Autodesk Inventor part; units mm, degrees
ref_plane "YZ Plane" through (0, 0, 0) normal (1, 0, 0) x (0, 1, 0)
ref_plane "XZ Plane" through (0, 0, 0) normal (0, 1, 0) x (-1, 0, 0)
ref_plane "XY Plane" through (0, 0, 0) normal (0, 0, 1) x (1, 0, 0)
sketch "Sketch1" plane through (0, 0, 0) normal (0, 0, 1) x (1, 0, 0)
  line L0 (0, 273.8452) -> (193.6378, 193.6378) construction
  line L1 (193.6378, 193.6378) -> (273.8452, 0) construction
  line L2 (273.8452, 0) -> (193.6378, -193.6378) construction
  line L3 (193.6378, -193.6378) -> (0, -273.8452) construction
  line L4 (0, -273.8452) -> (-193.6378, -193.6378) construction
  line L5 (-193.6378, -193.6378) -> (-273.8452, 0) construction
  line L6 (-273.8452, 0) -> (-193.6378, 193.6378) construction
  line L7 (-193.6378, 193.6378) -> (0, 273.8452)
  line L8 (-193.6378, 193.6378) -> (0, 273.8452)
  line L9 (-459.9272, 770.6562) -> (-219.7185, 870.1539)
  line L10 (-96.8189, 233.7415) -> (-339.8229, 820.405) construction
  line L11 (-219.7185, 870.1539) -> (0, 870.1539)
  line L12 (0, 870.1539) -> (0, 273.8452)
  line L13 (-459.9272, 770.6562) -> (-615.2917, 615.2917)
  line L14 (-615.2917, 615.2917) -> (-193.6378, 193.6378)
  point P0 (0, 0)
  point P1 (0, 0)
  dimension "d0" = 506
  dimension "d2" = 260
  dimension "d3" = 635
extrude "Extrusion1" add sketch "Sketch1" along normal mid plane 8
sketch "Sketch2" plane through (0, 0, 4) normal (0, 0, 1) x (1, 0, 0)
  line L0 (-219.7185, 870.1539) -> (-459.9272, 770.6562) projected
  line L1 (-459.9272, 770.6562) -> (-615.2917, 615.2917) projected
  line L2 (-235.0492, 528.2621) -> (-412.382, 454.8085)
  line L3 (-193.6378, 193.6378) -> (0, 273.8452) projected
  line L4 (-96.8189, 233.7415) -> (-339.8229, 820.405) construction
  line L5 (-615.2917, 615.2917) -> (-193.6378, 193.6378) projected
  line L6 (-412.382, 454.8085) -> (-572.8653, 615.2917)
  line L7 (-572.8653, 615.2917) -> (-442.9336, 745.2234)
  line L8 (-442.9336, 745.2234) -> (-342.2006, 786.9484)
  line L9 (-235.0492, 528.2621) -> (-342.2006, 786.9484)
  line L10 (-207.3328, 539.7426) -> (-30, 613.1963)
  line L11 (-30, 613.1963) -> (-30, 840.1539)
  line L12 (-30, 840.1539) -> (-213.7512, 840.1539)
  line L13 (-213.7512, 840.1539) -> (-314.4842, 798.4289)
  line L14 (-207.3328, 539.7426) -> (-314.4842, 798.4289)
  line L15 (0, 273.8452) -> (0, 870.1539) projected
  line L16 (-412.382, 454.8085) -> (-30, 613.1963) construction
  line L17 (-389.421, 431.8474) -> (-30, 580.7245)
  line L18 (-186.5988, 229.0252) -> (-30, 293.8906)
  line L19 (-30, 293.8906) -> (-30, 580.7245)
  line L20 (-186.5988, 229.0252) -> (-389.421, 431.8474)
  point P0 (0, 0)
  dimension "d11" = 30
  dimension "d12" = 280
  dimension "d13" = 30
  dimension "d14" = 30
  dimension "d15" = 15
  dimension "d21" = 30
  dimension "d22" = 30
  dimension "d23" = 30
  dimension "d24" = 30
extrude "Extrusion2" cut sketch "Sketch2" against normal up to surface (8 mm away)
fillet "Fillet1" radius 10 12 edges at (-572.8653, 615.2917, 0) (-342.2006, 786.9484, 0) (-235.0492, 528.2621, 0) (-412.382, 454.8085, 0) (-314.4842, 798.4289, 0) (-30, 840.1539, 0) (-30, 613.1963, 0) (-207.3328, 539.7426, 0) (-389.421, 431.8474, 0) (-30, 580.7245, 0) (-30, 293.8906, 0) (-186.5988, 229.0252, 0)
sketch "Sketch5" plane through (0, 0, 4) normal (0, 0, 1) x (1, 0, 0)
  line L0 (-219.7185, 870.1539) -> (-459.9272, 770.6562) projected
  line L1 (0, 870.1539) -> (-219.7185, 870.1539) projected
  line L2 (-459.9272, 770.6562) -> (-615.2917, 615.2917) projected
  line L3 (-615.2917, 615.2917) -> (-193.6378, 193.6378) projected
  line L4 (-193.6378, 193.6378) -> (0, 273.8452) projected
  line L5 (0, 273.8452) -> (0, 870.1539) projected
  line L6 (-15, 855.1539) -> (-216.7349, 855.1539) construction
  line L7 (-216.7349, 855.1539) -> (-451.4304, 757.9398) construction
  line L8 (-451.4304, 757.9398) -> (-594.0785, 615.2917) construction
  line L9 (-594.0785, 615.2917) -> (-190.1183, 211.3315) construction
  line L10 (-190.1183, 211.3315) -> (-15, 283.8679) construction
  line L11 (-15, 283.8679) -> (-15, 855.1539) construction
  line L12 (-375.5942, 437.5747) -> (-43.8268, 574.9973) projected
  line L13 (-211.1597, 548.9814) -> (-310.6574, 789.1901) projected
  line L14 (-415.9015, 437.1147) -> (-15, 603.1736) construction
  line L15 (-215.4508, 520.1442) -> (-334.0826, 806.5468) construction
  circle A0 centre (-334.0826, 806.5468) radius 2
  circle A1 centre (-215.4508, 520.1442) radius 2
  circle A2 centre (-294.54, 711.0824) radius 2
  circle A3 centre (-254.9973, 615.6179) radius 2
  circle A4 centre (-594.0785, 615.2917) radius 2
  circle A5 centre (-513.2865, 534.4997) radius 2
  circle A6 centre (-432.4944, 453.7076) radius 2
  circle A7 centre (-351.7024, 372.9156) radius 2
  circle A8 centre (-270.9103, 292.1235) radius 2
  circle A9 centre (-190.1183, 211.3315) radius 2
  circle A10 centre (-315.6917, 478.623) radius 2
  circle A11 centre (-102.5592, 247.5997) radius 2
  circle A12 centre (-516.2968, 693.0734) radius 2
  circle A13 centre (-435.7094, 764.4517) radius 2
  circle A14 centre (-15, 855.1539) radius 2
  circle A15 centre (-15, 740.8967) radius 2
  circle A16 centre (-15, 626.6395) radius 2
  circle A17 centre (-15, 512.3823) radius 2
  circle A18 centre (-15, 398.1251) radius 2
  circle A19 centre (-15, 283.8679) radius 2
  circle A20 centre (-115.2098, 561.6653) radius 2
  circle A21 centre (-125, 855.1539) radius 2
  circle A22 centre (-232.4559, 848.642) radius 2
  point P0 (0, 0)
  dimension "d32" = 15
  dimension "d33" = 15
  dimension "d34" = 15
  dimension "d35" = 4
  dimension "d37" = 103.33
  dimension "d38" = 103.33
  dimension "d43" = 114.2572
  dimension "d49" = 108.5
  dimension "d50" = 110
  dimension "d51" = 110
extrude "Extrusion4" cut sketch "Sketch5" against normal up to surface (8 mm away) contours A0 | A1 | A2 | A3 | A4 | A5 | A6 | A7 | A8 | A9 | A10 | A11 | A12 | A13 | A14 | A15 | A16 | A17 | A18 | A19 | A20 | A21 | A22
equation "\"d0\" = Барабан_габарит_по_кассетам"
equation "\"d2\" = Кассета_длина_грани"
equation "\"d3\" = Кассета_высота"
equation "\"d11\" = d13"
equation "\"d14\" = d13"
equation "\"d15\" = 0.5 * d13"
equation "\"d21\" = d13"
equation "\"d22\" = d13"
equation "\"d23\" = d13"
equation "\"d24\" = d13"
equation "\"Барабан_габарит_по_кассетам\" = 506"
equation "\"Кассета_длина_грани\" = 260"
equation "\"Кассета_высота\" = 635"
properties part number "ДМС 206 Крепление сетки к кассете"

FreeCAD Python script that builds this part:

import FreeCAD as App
import Part
import Sketcher

V = App.Vector
Q = App.Units.Quantity


def edges_at(feature, points):
    """Names of the edges that pass closest to the given points."""
    edges = feature.Shape.Edges
    near = lambda p: min(range(len(edges)), key=lambda i: edges[i].distToShape(Part.Vertex(*p))[0])
    return sorted({f"Edge{near(p) + 1}" for p in points})

doc = App.newDocument("Part")
body = doc.addObject("PartDesign::Body", "Body")

sketch1 = body.newObject("Sketcher::SketchObject", "Sketch")
sketch1.AttachmentSupport = (doc.getObject("XY_Plane"), [""])
sketch1.MapMode = "FlatFace"
sketch1.addGeometry([
    Part.LineSegment(V(-615, 615, 0), V(-194, 194, 0)),
    Part.LineSegment(V(-194, 194, 0), V(0, 274, 0)),
    Part.LineSegment(V(0, 274, 0), V(0, 870, 0)),
    Part.LineSegment(V(0, 870, 0), V(-220, 870, 0)),
    Part.LineSegment(V(-220, 870, 0), V(-460, 771, 0)),
    Part.LineSegment(V(-460, 771, 0), V(-615, 615, 0)),
], False)
sketch1.addConstraint([
    Sketcher.Constraint("Coincident", 0, 2, 1, 1),
    Sketcher.Constraint("Coincident", 1, 2, 2, 1),
    Sketcher.Constraint("Coincident", 2, 2, 3, 1),
    Sketcher.Constraint("Coincident", 3, 2, 4, 1),
    Sketcher.Constraint("Coincident", 4, 2, 5, 1),
    Sketcher.Constraint("Coincident", 5, 2, 0, 1),
    Sketcher.Constraint("Vertical", 2),
    Sketcher.Constraint("Horizontal", 3),
    Sketcher.Constraint("PointOnObject", 1, 2, -2),
    Sketcher.Constraint("Parallel", 1, 4),
    Sketcher.Constraint("Perpendicular", 0, 5),
    Sketcher.Constraint("Distance", 4, Q("260 mm")),
    Sketcher.Constraint("Angle", 0, Q("-45 deg")),
    Sketcher.Constraint("Angle", 1, Q("22.5 deg")),
    Sketcher.Constraint("Distance", 1, Q("209.592 mm")),
    Sketcher.Constraint("DistanceX", 3, 2, 3, 1, Q("219.7185 mm")),
    Sketcher.Constraint("DistanceY", 2, 1, 2, 2, Q("596.3087 mm")),
    Sketcher.Constraint("DistanceY", -1, 1, 2, 2, Q("870.154 mm")),
])
pad1 = body.newObject("PartDesign::Pad", "Pad")
pad1.Profile = sketch1
pad1.Length = 8
pad1.Midplane = True

sketch2 = body.newObject("Sketcher::SketchObject", "Sketch001")
sketch2.AttachmentSupport = (doc.getObject("XY_Plane"), [""])
sketch2.MapMode = "FlatFace"
sketch2.AttachmentOffset = App.Placement(V(0, 0, 4), App.Rotation())
sketch2.addGeometry([
    Part.LineSegment(V(-412, 455, 0), V(-235, 528, 0)),
    Part.LineSegment(V(-235, 528, 0), V(-342, 787, 0)),
    Part.LineSegment(V(-342, 787, 0), V(-443, 745, 0)),
    Part.LineSegment(V(-443, 745, 0), V(-573, 615, 0)),
    Part.LineSegment(V(-573, 615, 0), V(-412, 455, 0)),
    Part.LineSegment(V(-314, 798, 0), V(-207, 540, 0)),
    Part.LineSegment(V(-207, 540, 0), V(-30, 613, 0)),
    Part.LineSegment(V(-30, 613, 0), V(-30, 840, 0)),
    Part.LineSegment(V(-30, 840, 0), V(-214, 840, 0)),
    Part.LineSegment(V(-214, 840, 0), V(-314, 798, 0)),
    Part.LineSegment(V(-30, 581, 0), V(-389, 432, 0)),
    Part.LineSegment(V(-389, 432, 0), V(-187, 229, 0)),
    Part.LineSegment(V(-187, 229, 0), V(-30, 294, 0)),
    Part.LineSegment(V(-30, 294, 0), V(-30, 581, 0)),
], False)
sketch2.addConstraint([
    Sketcher.Constraint("Coincident", 0, 2, 1, 1),
    Sketcher.Constraint("Coincident", 1, 2, 2, 1),
    Sketcher.Constraint("Coincident", 2, 2, 3, 1),
    Sketcher.Constraint("Coincident", 3, 2, 4, 1),
    Sketcher.Constraint("Coincident", 4, 2, 0, 1),
    Sketcher.Constraint("Coincident", 5, 2, 6, 1),
    Sketcher.Constraint("Coincident", 6, 2, 7, 1),
    Sketcher.Constraint("Coincident", 7, 2, 8, 1),
    Sketcher.Constraint("Coincident", 8, 2, 9, 1),
    Sketcher.Constraint("Coincident", 9, 2, 5, 1),
    Sketcher.Constraint("Coincident", 10, 2, 11, 1),
    Sketcher.Constraint("Coincident", 11, 2, 12, 1),
    Sketcher.Constraint("Coincident", 12, 2, 13, 1),
    Sketcher.Constraint("Coincident", 13, 2, 10, 1),
    Sketcher.Constraint("Vertical", 7),
    Sketcher.Constraint("Horizontal", 8),
    Sketcher.Constraint("Vertical", 13),
    Sketcher.Constraint("Perpendicular", 0, 1),
    Sketcher.Constraint("Perpendicular", 1, 2),
    Sketcher.Constraint("Perpendicular", 3, 4),
    Sketcher.Constraint("Perpendicular", 2, 5),
    Sketcher.Constraint("Perpendicular", 5, 6),
    Sketcher.Constraint("Parallel", 6, 9),
    Sketcher.Constraint("Parallel", 9, 10),
    Sketcher.Constraint("Parallel", 4, 11),
    Sketcher.Constraint("Parallel", 10, 12),
    Sketcher.Constraint("Vertical", 7, 2, 12, 2),
    Sketcher.Constraint("Equal", 1, 5),
    Sketcher.Constraint("Equal", 0, 6),
    Sketcher.Constraint("Equal", 2, 9),
    Sketcher.Constraint("Distance", 1, Q("280 mm")),
    Sketcher.Constraint("DistanceX", 6, 2, -1, 1, Q("30 mm")),
    Sketcher.Constraint("Angle", 3, Q("-135 deg")),
    Sketcher.Constraint("Angle", 0, Q("22.5 deg")),
    Sketcher.Constraint("DistanceY", 13, 1, 13, 2, Q("286.834 mm")),
    Sketcher.Constraint("DistanceY", 4, 2, 1, 2, Q("332.14 mm")),
    Sketcher.Constraint("DistanceX", 8, 2, 8, 1, Q("183.7512 mm")),
    Sketcher.Constraint("DistanceY", -1, 1, 0, 2, Q("528.262 mm")),
    Sketcher.Constraint("DistanceX", 4, 2, -1, 1, Q("412.382 mm")),
    Sketcher.Constraint("DistanceY", -1, 1, 7, 2, Q("840.154 mm")),
    Sketcher.Constraint("DistanceX", 10, 2, -1, 1, Q("389.421 mm")),
    Sketcher.Constraint("DistanceY", 10, 2, 4, 2, Q("22.961 mm")),
])
pocket1 = body.newObject("PartDesign::Pocket", "Pocket")
pocket1.Profile = sketch2
pocket1.Length = 8
doc.recompute()

fillet = body.newObject("PartDesign::Fillet", "Fillet")
fillet.Base = (pocket1, edges_at(pocket1, [
    (-572.865, 615.292, 0),
    (-342.201, 786.948, 0),
    (-235.049, 528.262, 0),
    (-412.382, 454.808, 0),
    (-314.484, 798.429, 0),
    (-30, 840.154, 0),
    (-30, 613.196, 0),
    (-207.333, 539.743, 0),
    (-389.421, 431.847, 0),
    (-30, 580.725, 0),
    (-30, 293.891, 0),
    (-186.599, 229.025, 0),
]))
fillet.Radius = 10

sketch3 = body.newObject("Sketcher::SketchObject", "Sketch002")
sketch3.AttachmentSupport = (doc.getObject("XY_Plane"), [""])
sketch3.MapMode = "FlatFace"
sketch3.AttachmentOffset = App.Placement(V(0, 0, 4), App.Rotation())
sketch3.addGeometry([
    Part.Circle(V(-334.1, 806.5, 0), V(0, 0, 1), 2),
    Part.Circle(V(-215.5, 520.1, 0), V(0, 0, 1), 2),
    Part.Circle(V(-294.5, 711.1, 0), V(0, 0, 1), 2),
    Part.Circle(V(-255, 615.6, 0), V(0, 0, 1), 2),
    Part.Circle(V(-594.1, 615.3, 0), V(0, 0, 1), 2),
    Part.Circle(V(-513.3, 534.5, 0), V(0, 0, 1), 2),
    Part.Circle(V(-432.5, 453.7, 0), V(0, 0, 1), 2),
    Part.Circle(V(-351.7, 372.9, 0), V(0, 0, 1), 2),
    Part.Circle(V(-270.9, 292.1, 0), V(0, 0, 1), 2),
    Part.Circle(V(-190.1, 211.3, 0), V(0, 0, 1), 2),
    Part.Circle(V(-315.7, 478.6, 0), V(0, 0, 1), 2),
    Part.Circle(V(-102.6, 247.6, 0), V(0, 0, 1), 2),
    Part.Circle(V(-516.3, 693.1, 0), V(0, 0, 1), 2),
    Part.Circle(V(-435.7, 764.5, 0), V(0, 0, 1), 2),
    Part.Circle(V(-15, 855.2, 0), V(0, 0, 1), 2),
    Part.Circle(V(-15, 740.9, 0), V(0, 0, 1), 2),
    Part.Circle(V(-15, 626.6, 0), V(0, 0, 1), 2),
    Part.Circle(V(-15, 512.4, 0), V(0, 0, 1), 2),
    Part.Circle(V(-15, 398.1, 0), V(0, 0, 1), 2),
    Part.Circle(V(-15, 283.9, 0), V(0, 0, 1), 2),
    Part.Circle(V(-115.2, 561.7, 0), V(0, 0, 1), 2),
    Part.Circle(V(-125, 855.2, 0), V(0, 0, 1), 2),
    Part.Circle(V(-232.5, 848.6, 0), V(0, 0, 1), 2),
], False)
sketch3.addConstraint([
    Sketcher.Constraint("Equal", 0, 1),
    Sketcher.Constraint("Equal", 1, 2),
    Sketcher.Constraint("Equal", 2, 3),
    Sketcher.Constraint("Equal", 3, 4),
    Sketcher.Constraint("Equal", 4, 5),
    Sketcher.Constraint("Equal", 5, 6),
    Sketcher.Constraint("Equal", 6, 7),
    Sketcher.Constraint("Equal", 7, 8),
    Sketcher.Constraint("Equal", 8, 9),
    Sketcher.Constraint("Equal", 9, 10),
    Sketcher.Constraint("Equal", 10, 11),
    Sketcher.Constraint("Equal", 11, 12),
    Sketcher.Constraint("Equal", 12, 13),
    Sketcher.Constraint("Equal", 13, 14),
    Sketcher.Constraint("Equal", 14, 15),
    Sketcher.Constraint("Equal", 15, 16),
    Sketcher.Constraint("Equal", 16, 17),
    Sketcher.Constraint("Equal", 17, 18),
    Sketcher.Constraint("Equal", 18, 19),
    Sketcher.Constraint("Equal", 19, 20),
    Sketcher.Constraint("Equal", 20, 21),
    Sketcher.Constraint("Equal", 21, 22),
    Sketcher.Constraint("Horizontal", 14, 3, 21, 3),
    Sketcher.Constraint("Vertical", 14, 3, 15, 3),
    Sketcher.Constraint("Vertical", 15, 3, 16, 3),
    Sketcher.Constraint("Vertical", 16, 3, 17, 3),
    Sketcher.Constraint("Vertical", 17, 3, 18, 3),
    Sketcher.Constraint("Vertical", 18, 3, 19, 3),
    Sketcher.Constraint("Diameter", 0, Q("4 mm")),
    Sketcher.Constraint("DistanceX", 14, 3, -1, 1, Q("15 mm")),
    Sketcher.Constraint("DistanceX", 21, 3, 14, 3, Q("110 mm")),
    Sketcher.Constraint("DistanceY", 15, 3, 14, 3, Q("114.2572 mm")),
    Sketcher.Constraint("DistanceY", 16, 3, 15, 3, Q("114.2572 mm")),
    Sketcher.Constraint("DistanceY", 17, 3, 16, 3, Q("114.2572 mm")),
    Sketcher.Constraint("DistanceY", 18, 3, 17, 3, Q("114.2572 mm")),
    Sketcher.Constraint("DistanceY", 19, 3, 18, 3, Q("114.2572 mm")),
    Sketcher.Constraint("DistanceX", 2, 3, -1, 1, Q("294.54 mm")),
    Sketcher.Constraint("DistanceY", 4, 3, 13, 3, Q("149.16 mm")),
    Sketcher.Constraint("DistanceY", 15, 3, 0, 3, Q("65.65 mm")),
    Sketcher.Constraint("DistanceY", -1, 1, 3, 3, Q("615.618 mm")),
    Sketcher.Constraint("DistanceY", -1, 1, 10, 3, Q("478.623 mm")),
    Sketcher.Constraint("DistanceY", -1, 1, 14, 3, Q("855.154 mm")),
    Sketcher.Constraint("DistanceX", 22, 3, -1, 1, Q("232.456 mm")),
    Sketcher.Constraint("DistanceY", -1, 1, 22, 3, Q("848.642 mm")),
    Sketcher.Constraint("DistanceX", 4, 3, 0, 3, Q("259.996 mm")),
    Sketcher.Constraint("DistanceY", 4, 3, 0, 3, Q("191.255 mm")),
    Sketcher.Constraint("DistanceX", 4, 3, 5, 3, Q("80.792 mm")),
    Sketcher.Constraint("DistanceY", 5, 3, 4, 3, Q("80.792 mm")),
    Sketcher.Constraint("DistanceX", 5, 3, 6, 3, Q("80.792 mm")),
    Sketcher.Constraint("DistanceY", 6, 3, 5, 3, Q("80.792 mm")),
    Sketcher.Constraint("DistanceX", 6, 3, 3, 3, Q("177.497 mm")),
    Sketcher.Constraint("DistanceX", 6, 3, 7, 3, Q("80.792 mm")),
    Sketcher.Constraint("DistanceY", 7, 3, 6, 3, Q("80.792 mm")),
    Sketcher.Constraint("DistanceX", 7, 3, 8, 3, Q("80.792 mm")),
    Sketcher.Constraint("DistanceY", 8, 3, 7, 3, Q("80.792 mm")),
    Sketcher.Constraint("DistanceX", 8, 3, 9, 3, Q("80.792 mm")),
    Sketcher.Constraint("DistanceY", 9, 3, 8, 3, Q("80.792 mm")),
    Sketcher.Constraint("DistanceX", 10, 3, 1, 3, Q("100.241 mm")),
    Sketcher.Constraint("DistanceX", 9, 3, 11, 3, Q("87.559 mm")),
    Sketcher.Constraint("DistanceY", 11, 3, 7, 3, Q("125.316 mm")),
    Sketcher.Constraint("DistanceY", 12, 3, 2, 3, Q("18.009 mm")),
    Sketcher.Constraint("DistanceX", 4, 3, 13, 3, Q("158.369 mm")),
    Sketcher.Constraint("DistanceY", 16, 3, 2, 3, Q("84.443 mm")),
    Sketcher.Constraint("DistanceY", 17, 3, 1, 3, Q("7.762 mm")),
    Sketcher.Constraint("DistanceX", 1, 3, 20, 3, Q("100.241 mm")),
    Sketcher.Constraint("DistanceY", 1, 3, 20, 3, Q("41.521 mm")),
    Sketcher.Constraint("DistanceX", 0, 3, -1, 1, Q("334.0826 mm")),
    Sketcher.Constraint("DistanceX", 1, 3, -1, 1, Q("215.4508 mm")),
    Sketcher.Constraint("DistanceX", 12, 3, -1, 1, Q("516.2968 mm")),
])
pocket2 = body.newObject("PartDesign::Pocket", "Pocket001")
pocket2.Profile = sketch3
pocket2.Length = 8

doc.recompute()
